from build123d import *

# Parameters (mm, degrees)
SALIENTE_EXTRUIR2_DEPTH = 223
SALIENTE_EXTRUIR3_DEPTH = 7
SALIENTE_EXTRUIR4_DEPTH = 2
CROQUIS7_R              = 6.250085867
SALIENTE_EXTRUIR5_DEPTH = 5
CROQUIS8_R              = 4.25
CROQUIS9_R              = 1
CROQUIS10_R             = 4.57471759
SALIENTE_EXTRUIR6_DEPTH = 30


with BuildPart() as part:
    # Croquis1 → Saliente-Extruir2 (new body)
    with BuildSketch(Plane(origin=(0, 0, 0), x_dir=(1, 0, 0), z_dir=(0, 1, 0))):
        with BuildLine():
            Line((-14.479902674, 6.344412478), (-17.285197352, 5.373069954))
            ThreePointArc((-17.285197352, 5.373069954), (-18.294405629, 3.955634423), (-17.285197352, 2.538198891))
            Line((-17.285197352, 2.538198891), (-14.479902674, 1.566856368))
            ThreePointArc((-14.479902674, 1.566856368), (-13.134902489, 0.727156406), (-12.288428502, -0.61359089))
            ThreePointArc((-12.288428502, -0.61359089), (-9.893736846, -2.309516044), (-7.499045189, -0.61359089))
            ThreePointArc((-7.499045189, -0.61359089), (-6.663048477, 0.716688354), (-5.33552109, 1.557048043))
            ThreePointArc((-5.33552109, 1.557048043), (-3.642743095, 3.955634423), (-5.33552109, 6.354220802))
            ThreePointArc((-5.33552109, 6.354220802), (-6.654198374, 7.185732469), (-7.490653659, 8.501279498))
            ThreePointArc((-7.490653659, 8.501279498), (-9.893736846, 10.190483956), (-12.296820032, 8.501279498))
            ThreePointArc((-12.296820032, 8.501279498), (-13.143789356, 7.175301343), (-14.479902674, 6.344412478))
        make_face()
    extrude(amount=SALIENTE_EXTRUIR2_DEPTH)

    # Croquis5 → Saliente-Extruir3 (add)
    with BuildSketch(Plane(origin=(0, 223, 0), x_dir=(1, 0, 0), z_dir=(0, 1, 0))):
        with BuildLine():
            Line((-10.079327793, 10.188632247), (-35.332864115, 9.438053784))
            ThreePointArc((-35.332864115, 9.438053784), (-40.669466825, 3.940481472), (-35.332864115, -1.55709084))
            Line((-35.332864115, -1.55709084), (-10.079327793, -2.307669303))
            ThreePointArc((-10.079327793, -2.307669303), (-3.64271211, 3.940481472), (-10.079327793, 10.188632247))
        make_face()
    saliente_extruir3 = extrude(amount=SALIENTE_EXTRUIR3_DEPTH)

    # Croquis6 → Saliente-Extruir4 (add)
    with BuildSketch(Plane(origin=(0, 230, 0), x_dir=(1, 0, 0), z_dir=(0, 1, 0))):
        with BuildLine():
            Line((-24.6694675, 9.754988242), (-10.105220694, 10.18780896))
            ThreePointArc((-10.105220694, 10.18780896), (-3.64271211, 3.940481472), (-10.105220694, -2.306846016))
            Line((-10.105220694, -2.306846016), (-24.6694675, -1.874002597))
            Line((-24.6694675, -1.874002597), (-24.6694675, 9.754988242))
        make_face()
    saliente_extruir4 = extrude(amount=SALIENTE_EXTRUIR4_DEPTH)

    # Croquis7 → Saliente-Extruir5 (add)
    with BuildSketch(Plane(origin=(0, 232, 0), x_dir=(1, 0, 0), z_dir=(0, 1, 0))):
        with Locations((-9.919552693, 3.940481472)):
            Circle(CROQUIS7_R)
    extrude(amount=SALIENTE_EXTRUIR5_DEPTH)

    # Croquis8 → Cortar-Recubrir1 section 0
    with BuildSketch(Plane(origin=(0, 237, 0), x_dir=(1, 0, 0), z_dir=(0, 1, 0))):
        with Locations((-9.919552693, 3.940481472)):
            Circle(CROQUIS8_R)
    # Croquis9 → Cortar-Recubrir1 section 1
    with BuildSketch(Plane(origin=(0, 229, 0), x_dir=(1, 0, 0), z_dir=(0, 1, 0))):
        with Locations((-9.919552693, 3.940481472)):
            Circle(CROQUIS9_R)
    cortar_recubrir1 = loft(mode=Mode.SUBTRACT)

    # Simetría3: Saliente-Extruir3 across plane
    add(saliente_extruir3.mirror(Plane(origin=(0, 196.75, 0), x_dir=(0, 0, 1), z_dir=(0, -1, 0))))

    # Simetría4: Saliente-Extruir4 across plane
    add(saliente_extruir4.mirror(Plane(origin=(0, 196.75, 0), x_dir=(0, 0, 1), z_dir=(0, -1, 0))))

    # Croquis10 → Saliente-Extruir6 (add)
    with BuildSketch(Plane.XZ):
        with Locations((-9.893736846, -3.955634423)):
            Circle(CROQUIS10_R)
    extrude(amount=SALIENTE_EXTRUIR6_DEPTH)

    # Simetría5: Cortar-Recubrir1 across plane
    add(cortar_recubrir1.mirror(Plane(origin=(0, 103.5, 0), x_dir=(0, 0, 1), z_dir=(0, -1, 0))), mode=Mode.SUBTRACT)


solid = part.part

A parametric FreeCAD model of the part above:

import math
import FreeCAD as App
import Part
import Sketcher

V = App.Vector
Q = App.Units.Quantity

doc = App.newDocument("Part")
params = doc.addObject("Spreadsheet::Sheet", "Params")
for row, (alias, value) in enumerate([
    ("sketch1_radius", "1.5 mm"),
    ("pad1_length", "223 mm"),
    ("sketch2_radius", "5.5 mm"),
    ("pad2_length", "7 mm"),
    ("pad3_length", "2 mm"),
    ("pad4_length", "5 mm"),
    ("sketch5_diameter", "8.5 mm"),
    ("sketch6_diameter", "2 mm"),
    ("pad5_length", "30 mm"),
], start=1):
    params.set(f"A{row}", alias)
    params.set(f"B{row}", "=" + value)
    params.setAlias(f"B{row}", alias)

body = doc.addObject("PartDesign::Body", "Body")

# Sketch on XZ plane
sketch1 = body.newObject("Sketcher::SketchObject", "Sketch")
sketch1.AttachmentSupport = (doc.getObject("XZ_Plane"), [""])
sketch1.MapMode = "FlatFace"
sketch1.addGeometry(Part.LineSegment(V(-14.5, -6.3, 0), V(-17.3, -5.4, 0)), False)
sketch1.addGeometry(Part.ArcOfCircle(Part.Circle(V(-16.8, -4, 0), V(0, 0, 1), 1.5), math.radians(109), math.radians(251)), False)
sketch1.addGeometry(Part.LineSegment(V(-17.3, -2.5, 0), V(-14.5, -1.6, 0)), False)
sketch1.addGeometry(Part.ArcOfCircle(Part.Circle(V(-15.6, 1.8, 0), V(0, 0, 1), 3.6), math.radians(-71), math.radians(-19)), False)
sketch1.addGeometry(Part.ArcOfCircle(Part.Circle(V(-9.9, -0.2, 0), V(0, 0, 1), 2.5), math.radians(19), math.radians(161)), False)
sketch1.addGeometry(Part.ArcOfCircle(Part.Circle(V(-4.1, 1.8, 0), V(0, 0, 1), 3.6), math.radians(-161), math.radians(-110)), False)
sketch1.addGeometry(Part.ArcOfCircle(Part.Circle(V(-6.2, -4, 0), V(0, 0, 1), 2.5), math.radians(-70), math.radians(70)), False)
sketch1.addGeometry(Part.ArcOfCircle(Part.Circle(V(-4.1, -9.7, 0), V(0, 0, 1), 3.6), math.radians(110), math.radians(160)), False)
sketch1.addGeometry(Part.ArcOfCircle(Part.Circle(V(-9.9, -7.6, 0), V(0, 0, 1), 2.6), math.radians(-160), math.radians(-20)), False)
sketch1.addGeometry(Part.ArcOfCircle(Part.Circle(V(-15.6, -9.7, 0), V(0, 0, 1), 3.6), math.radians(20), math.radians(71)), False)
sketch1.addConstraint(Sketcher.Constraint("Tangent", 0, 2, 1, 2))
sketch1.addConstraint(Sketcher.Constraint("Tangent", 1, 1, 2, 1))
sketch1.addConstraint(Sketcher.Constraint("Tangent", 2, 2, 3, 1))
sketch1.addConstraint(Sketcher.Constraint("Tangent", 3, 2, 4, 2))
sketch1.addConstraint(Sketcher.Constraint("Tangent", 4, 1, 5, 1))
sketch1.addConstraint(Sketcher.Constraint("Tangent", 5, 2, 6, 2))
sketch1.addConstraint(Sketcher.Constraint("Tangent", 6, 1, 7, 1))
sketch1.addConstraint(Sketcher.Constraint("Tangent", 7, 2, 8, 2))
sketch1.addConstraint(Sketcher.Constraint("Tangent", 8, 1, 9, 1))
sketch1.addConstraint(Sketcher.Constraint("Tangent", 9, 2, 0, 1))
sketch1.addConstraint(Sketcher.Constraint("Equal", 3, 5))
sketch1.addConstraint(Sketcher.Constraint("Equal", 5, 7))
sketch1.addConstraint(Sketcher.Constraint("Equal", 7, 9))
sketch1.addConstraint(Sketcher.Constraint("Horizontal", 3, 3, 5, 3))
sketch1.addConstraint(Sketcher.Constraint("Horizontal", 1, 3, 6, 3))
sketch1.addConstraint(Sketcher.Constraint("Horizontal", 7, 3, 9, 3))
sketch1.addConstraint(Sketcher.Constraint("Vertical", 5, 3, 7, 3))
sketch1.addConstraint(Sketcher.Constraint("Vertical", 4, 3, 8, 3))
sketch1.addConstraint(Sketcher.Constraint("Radius", 1, Q("1.5 mm")))
sketch1.addConstraint(Sketcher.Constraint("DistanceX", 3, 3, 5, 3, Q("11.5 mm")))
sketch1.addConstraint(Sketcher.Constraint("DistanceY", 7, 3, 5, 3, Q("11.5 mm")))
sketch1.addConstraint(Sketcher.Constraint("Radius", 3, Q("3.55701 mm")))
sketch1.addConstraint(Sketcher.Constraint("Radius", 6, Q("2.545731 mm")))
sketch1.addConstraint(Sketcher.Constraint("Radius", 8, Q("2.55393 mm")))
sketch1.addConstraint(Sketcher.Constraint("Radius", 4, Q("2.538647 mm")))
sketch1.addConstraint(Sketcher.Constraint("Distance", 0, Q("2.968701 mm")))
sketch1.addConstraint(Sketcher.Constraint("DistanceY", 1, 1, -1, 1, Q("2.538199 mm")))
sketch1.addConstraint(Sketcher.Constraint("DistanceX", 3, 2, -1, 1, Q("12.288429 mm")))
sketch1.setExpression("Constraints[18]", "Params.sketch1_radius")
pad1 = body.newObject("PartDesign::Pad", "Pad")
pad1.Profile = sketch1
pad1.setExpression("Length", "Params.pad1_length")
pad1.Reversed = True

# Sketch on XZ plane
sketch2 = body.newObject("Sketcher::SketchObject", "Sketch001")
sketch2.AttachmentSupport = (doc.getObject("XZ_Plane"), [""])
sketch2.MapMode = "FlatFace"
sketch2.AttachmentOffset = App.Placement(V(0, 0, -223), App.Rotation())
sketch2.addGeometry(Part.LineSegment(V(-10, -10, 0), V(-35, -9, 0)), False)
sketch2.addGeometry(Part.ArcOfCircle(Part.Circle(V(-35, -4, 0), V(0, 0, 1), 6), math.radians(92), math.radians(268)), False)
sketch2.addGeometry(Part.LineSegment(V(-35, 2, 0), V(-10, 2, 0)), False)
sketch2.addGeometry(Part.ArcOfCircle(Part.Circle(V(-10, -4, 0), V(0, 0, 1), 6), math.radians(-92), math.radians(92)), False)
sketch2.addConstraint(Sketcher.Constraint("Tangent", 0, 2, 1, 2))
sketch2.addConstraint(Sketcher.Constraint("Tangent", 1, 1, 2, 1))
sketch2.addConstraint(Sketcher.Constraint("Tangent", 2, 2, 3, 2))
sketch2.addConstraint(Sketcher.Constraint("Tangent", 3, 1, 0, 1))
sketch2.addConstraint(Sketcher.Constraint("Horizontal", 1, 3, 3, 3))
sketch2.addConstraint(Sketcher.Constraint("Radius", 1, Q("5.5 mm")))
sketch2.addConstraint(Sketcher.Constraint("Radius", 3, Q("6.25091 mm")))
sketch2.addConstraint(Sketcher.Constraint("Distance", 0, Q("25.264688 mm")))
sketch2.addConstraint(Sketcher.Constraint("DistanceY", 1, 3, -1, 1, Q("3.940481 mm")))
sketch2.addConstraint(Sketcher.Constraint("DistanceX", 1, 3, -1, 1, Q("35.169467 mm")))
sketch2.setExpression("Constraints[5]", "Params.sketch2_radius")
pad2 = body.newObject("PartDesign::Pad", "Pad001")
pad2.Profile = sketch2
pad2.setExpression("Length", "Params.pad2_length")
pad2.Reversed = True

# Sketch on XZ plane
sketch3 = body.newObject("Sketcher::SketchObject", "Sketch002")
sketch3.AttachmentSupport = (doc.getObject("XZ_Plane"), [""])
sketch3.MapMode = "FlatFace"
sketch3.AttachmentOffset = App.Placement(V(0, 0, -230), App.Rotation())
sketch3.addGeometry(Part.LineSegment(V(-10, -10, 0), V(-25, -10, 0)), False)
sketch3.addGeometry(Part.LineSegment(V(-25, -10, 0), V(-25, 2, 0)), False)
sketch3.addGeometry(Part.LineSegment(V(-25, 2, 0), V(-10, 2, 0)), False)
sketch3.addGeometry(Part.ArcOfCircle(Part.Circle(V(-10, -4, 0), V(0, 0, 1), 6), math.radians(-92), math.radians(92)), False)
sketch3.addConstraint(Sketcher.Constraint("Coincident", 0, 2, 1, 1))
sketch3.addConstraint(Sketcher.Constraint("Coincident", 1, 2, 2, 1))
sketch3.addConstraint(Sketcher.Constraint("Coincident", 2, 2, 3, 2))
sketch3.addConstraint(Sketcher.Constraint("Coincident", 3, 1, 0, 1))
sketch3.addConstraint(Sketcher.Constraint("Vertical", 1))
sketch3.addConstraint(Sketcher.Constraint("Vertical", 2, 2, 3, 1))
sketch3.addConstraint(Sketcher.Constraint("Equal", 0, 2))
sketch3.addConstraint(Sketcher.Constraint("Radius", 3, Q("6.25091 mm")))
sketch3.addConstraint(Sketcher.Constraint("DistanceY", 1, 1, 1, 2, Q("11.628991 mm")))
sketch3.addConstraint(Sketcher.Constraint("DistanceX", 2, 2, 3, 3, Q("0.211599 mm")))
sketch3.addConstraint(Sketcher.Constraint("DistanceY", 3, 3, -1, 1, Q("3.940481 mm")))
sketch3.addConstraint(Sketcher.Constraint("DistanceX", 2, 2, -1, 1, Q("10.105221 mm")))
sketch3.addConstraint(Sketcher.Constraint("Distance", 0, Q("14.570677 mm")))
pad3 = body.newObject("PartDesign::Pad", "Pad002")
pad3.Profile = sketch3
pad3.setExpression("Length", "Params.pad3_length")
pad3.Reversed = True

# Sketch on XZ plane
sketch4 = body.newObject("Sketcher::SketchObject", "Sketch003")
sketch4.AttachmentSupport = (doc.getObject("XZ_Plane"), [""])
sketch4.MapMode = "FlatFace"
sketch4.AttachmentOffset = App.Placement(V(0, 0, -232), App.Rotation())
sketch4.addGeometry(Part.Circle(V(-10, -4, 0), V(0, 0, 1), 6), False)
sketch4.addConstraint(Sketcher.Constraint("Diameter", 0, Q("12.500172 mm")))
sketch4.addConstraint(Sketcher.Constraint("DistanceY", 0, 3, -1, 1, Q("3.940481 mm")))
sketch4.addConstraint(Sketcher.Constraint("DistanceX", 0, 3, -1, 1, Q("9.919553 mm")))
pad4 = body.newObject("PartDesign::Pad", "Pad003")
pad4.Profile = sketch4
pad4.setExpression("Length", "Params.pad4_length")
pad4.Reversed = True

# Sketch on XZ plane
sketch5 = body.newObject("Sketcher::SketchObject", "Sketch004")
sketch5.AttachmentSupport = (doc.getObject("XZ_Plane"), [""])
sketch5.MapMode = "FlatFace"
sketch5.AttachmentOffset = App.Placement(V(0, 0, -237), App.Rotation())
sketch5.addGeometry(Part.Circle(V(-9.9, -3.9, 0), V(0, 0, 1), 4.2), False)
sketch5.addConstraint(Sketcher.Constraint("Diameter", 0, Q("8.5 mm")))
sketch5.addConstraint(Sketcher.Constraint("DistanceY", 0, 3, -1, 1, Q("3.940481 mm")))
sketch5.addConstraint(Sketcher.Constraint("DistanceX", 0, 3, -1, 1, Q("9.919553 mm")))
sketch5.setExpression("Constraints[0]", "Params.sketch5_diameter")

# Sketch on XZ plane
sketch6 = body.newObject("Sketcher::SketchObject", "Sketch005")
sketch6.AttachmentSupport = (doc.getObject("XZ_Plane"), [""])
sketch6.MapMode = "FlatFace"
sketch6.AttachmentOffset = App.Placement(V(0, 0, -229), App.Rotation())
sketch6.addGeometry(Part.Circle(V(-9.9, -3.9, 0), V(0, 0, 1), 1), False)
sketch6.addConstraint(Sketcher.Constraint("Diameter", 0, Q("2 mm")))
sketch6.addConstraint(Sketcher.Constraint("DistanceY", 0, 3, -1, 1, Q("3.940481 mm")))
sketch6.addConstraint(Sketcher.Constraint("DistanceX", 0, 3, -1, 1, Q("9.919553 mm")))
sketch6.setExpression("Constraints[0]", "Params.sketch6_diameter")

subtractiveloft = body.newObject("PartDesign::SubtractiveLoft", "SubtractiveLoft")
subtractiveloft.Profile = sketch5
subtractiveloft.Sections = [sketch6]
doc.recompute()

datumplane = body.newObject("PartDesign::Plane", "DatumPlane")
datumplane.AttachmentSupport = (doc.getObject("XZ_Plane"), [""])
datumplane.MapMode = "FlatFace"
datumplane.AttachmentOffset = App.Placement(V(0, 0, -196.75), App.Rotation())
mirrored = body.newObject("PartDesign::Mirrored", "Mirrored")
mirrored.Originals = [pad2]
mirrored.MirrorPlane = (datumplane, [""])
body.Tip = mirrored
doc.recompute()

datumplane2 = body.newObject("PartDesign::Plane", "DatumPlane001")
datumplane2.AttachmentSupport = (doc.getObject("XZ_Plane"), [""])
datumplane2.MapMode = "FlatFace"
datumplane2.AttachmentOffset = App.Placement(V(0, 0, -196.75), App.Rotation())
mirrored2 = body.newObject("PartDesign::Mirrored", "Mirrored001")
mirrored2.Originals = [pad3]
mirrored2.MirrorPlane = (datumplane2, [""])
body.Tip = mirrored2

# Sketch on XZ plane
sketch7 = body.newObject("Sketcher::SketchObject", "Sketch006")
sketch7.AttachmentSupport = (doc.getObject("XZ_Plane"), [""])
sketch7.MapMode = "FlatFace"
sketch7.addGeometry(Part.Circle(V(-9.9, -4, 0), V(0, 0, 1), 4.6), False)
sketch7.addConstraint(Sketcher.Constraint("Diameter", 0, Q("9.149435 mm")))
sketch7.addConstraint(Sketcher.Constraint("DistanceX", 0, 3, -1, 1, Q("9.893737 mm")))
sketch7.addConstraint(Sketcher.Constraint("DistanceY", 0, 3, -1, 1, Q("3.955634 mm")))
pad5 = body.newObject("PartDesign::Pad", "Pad004")
pad5.Profile = sketch7
pad5.setExpression("Length", "Params.pad5_length")
doc.recompute()

datumplane3 = body.newObject("PartDesign::Plane", "DatumPlane002")
datumplane3.AttachmentSupport = (doc.getObject("XZ_Plane"), [""])
datumplane3.MapMode = "FlatFace"
datumplane3.AttachmentOffset = App.Placement(V(0, 0, -103.5), App.Rotation())
mirrored3 = body.newObject("PartDesign::Mirrored", "Mirrored002")
mirrored3.Originals = [subtractiveloft]
mirrored3.MirrorPlane = (datumplane3, [""])
body.Tip = mirrored3

doc.recompute()
